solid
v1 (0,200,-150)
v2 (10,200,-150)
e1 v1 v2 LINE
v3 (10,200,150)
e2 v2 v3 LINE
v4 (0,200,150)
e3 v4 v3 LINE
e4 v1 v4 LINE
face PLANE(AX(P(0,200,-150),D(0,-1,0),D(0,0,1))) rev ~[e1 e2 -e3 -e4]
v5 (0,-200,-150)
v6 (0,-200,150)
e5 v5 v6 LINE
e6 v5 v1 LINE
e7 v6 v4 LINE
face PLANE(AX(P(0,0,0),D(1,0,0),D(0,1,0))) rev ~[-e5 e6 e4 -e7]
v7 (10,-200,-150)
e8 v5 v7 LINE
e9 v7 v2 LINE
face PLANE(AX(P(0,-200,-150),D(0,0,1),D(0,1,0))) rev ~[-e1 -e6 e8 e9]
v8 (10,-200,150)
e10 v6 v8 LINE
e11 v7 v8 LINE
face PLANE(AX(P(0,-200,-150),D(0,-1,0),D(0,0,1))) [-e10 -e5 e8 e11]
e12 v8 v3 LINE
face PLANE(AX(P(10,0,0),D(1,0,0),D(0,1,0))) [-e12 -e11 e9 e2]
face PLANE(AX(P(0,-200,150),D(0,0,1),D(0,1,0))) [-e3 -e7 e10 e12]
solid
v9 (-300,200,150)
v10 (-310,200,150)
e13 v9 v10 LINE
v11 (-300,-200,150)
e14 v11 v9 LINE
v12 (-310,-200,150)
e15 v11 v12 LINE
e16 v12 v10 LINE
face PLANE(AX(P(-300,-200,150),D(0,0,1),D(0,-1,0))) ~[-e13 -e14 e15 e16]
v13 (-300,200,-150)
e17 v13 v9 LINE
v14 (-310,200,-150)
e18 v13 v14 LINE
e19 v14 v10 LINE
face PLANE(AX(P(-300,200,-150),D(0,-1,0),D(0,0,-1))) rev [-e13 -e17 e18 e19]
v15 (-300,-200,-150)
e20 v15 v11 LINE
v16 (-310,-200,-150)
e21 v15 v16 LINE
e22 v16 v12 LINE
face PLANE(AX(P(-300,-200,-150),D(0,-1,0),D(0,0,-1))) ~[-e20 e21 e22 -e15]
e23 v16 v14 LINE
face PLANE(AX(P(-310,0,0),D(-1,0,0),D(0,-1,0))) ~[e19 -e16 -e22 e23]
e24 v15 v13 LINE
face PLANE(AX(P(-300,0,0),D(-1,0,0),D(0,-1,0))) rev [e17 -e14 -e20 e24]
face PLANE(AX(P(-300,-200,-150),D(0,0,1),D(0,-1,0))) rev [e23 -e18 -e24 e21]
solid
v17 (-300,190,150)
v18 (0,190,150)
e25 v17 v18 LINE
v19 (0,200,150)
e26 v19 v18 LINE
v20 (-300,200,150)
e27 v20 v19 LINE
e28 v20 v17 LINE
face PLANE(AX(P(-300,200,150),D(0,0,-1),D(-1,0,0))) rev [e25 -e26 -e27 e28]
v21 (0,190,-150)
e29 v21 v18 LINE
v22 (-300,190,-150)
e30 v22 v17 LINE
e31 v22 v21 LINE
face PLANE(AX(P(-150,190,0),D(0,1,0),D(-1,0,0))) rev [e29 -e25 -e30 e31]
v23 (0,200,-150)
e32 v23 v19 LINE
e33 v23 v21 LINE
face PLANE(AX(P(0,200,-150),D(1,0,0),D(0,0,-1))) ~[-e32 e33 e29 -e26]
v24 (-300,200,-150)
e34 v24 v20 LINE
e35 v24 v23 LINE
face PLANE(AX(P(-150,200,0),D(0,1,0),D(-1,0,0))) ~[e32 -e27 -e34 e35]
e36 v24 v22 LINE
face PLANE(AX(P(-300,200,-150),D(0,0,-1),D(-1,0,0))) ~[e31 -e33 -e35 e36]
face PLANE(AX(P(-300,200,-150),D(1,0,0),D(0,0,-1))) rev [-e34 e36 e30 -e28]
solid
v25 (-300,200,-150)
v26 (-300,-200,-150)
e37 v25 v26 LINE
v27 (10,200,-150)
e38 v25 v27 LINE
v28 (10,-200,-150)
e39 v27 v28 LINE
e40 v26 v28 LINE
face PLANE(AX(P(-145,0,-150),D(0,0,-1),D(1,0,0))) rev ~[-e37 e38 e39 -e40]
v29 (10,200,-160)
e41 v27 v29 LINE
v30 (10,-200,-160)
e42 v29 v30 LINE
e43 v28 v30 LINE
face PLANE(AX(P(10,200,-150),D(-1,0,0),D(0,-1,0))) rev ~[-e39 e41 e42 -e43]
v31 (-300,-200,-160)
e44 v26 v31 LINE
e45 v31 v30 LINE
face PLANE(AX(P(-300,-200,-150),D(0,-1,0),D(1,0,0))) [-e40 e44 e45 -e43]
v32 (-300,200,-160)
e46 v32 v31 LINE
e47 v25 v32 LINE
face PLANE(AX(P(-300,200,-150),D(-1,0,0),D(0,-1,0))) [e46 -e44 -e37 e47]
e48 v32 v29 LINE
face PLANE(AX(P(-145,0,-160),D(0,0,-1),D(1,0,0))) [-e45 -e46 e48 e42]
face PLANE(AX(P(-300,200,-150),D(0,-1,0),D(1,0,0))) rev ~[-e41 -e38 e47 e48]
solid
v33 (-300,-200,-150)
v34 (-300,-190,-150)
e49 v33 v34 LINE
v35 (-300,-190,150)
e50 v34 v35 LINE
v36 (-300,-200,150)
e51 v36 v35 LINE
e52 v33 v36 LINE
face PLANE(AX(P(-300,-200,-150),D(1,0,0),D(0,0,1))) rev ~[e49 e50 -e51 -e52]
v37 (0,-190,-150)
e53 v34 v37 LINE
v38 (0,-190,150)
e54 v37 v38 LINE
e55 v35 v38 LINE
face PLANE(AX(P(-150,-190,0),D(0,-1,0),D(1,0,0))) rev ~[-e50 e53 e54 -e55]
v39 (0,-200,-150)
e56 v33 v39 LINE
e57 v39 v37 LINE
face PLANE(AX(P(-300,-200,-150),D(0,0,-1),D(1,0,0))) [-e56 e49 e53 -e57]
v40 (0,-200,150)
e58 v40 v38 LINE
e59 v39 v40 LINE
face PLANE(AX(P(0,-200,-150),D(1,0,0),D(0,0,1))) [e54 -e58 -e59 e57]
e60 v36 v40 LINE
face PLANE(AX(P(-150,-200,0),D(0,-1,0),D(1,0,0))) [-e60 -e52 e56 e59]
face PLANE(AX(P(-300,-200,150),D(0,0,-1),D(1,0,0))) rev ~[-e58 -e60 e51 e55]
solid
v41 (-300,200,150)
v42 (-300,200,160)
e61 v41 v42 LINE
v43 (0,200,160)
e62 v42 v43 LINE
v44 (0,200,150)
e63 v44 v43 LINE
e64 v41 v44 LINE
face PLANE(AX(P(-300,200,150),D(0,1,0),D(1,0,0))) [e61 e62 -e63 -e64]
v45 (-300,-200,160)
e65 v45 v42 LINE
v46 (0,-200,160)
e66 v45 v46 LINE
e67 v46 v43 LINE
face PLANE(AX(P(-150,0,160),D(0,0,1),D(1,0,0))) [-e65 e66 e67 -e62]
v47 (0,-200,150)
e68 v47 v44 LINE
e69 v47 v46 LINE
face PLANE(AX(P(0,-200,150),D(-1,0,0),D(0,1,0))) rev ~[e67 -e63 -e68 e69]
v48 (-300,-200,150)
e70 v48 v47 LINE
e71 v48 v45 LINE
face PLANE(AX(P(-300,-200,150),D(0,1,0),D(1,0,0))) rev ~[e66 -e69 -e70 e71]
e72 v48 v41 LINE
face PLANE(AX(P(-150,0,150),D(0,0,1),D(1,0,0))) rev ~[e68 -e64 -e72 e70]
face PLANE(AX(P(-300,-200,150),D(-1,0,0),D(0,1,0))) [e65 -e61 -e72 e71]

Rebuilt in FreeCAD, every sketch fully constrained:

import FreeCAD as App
import Part
import Sketcher
from FreeCAD import Vector


def add_polygon(sketch, points):
    """Adds a closed chain of lines whose ends are joined by coincident constraints."""
    first, n = sketch.GeometryCount, len(points)
    for a, b in zip(points, points[1:] + points[:1]):
        sketch.addGeometry(Part.LineSegment(App.Vector(*a, 0), App.Vector(*b, 0)), False)
    for i in range(n):
        sketch.addConstraint(Sketcher.Constraint("Coincident", first + i, 2, first + (i + 1) % n, 1))

doc = App.newDocument("Part")
body = doc.addObject("PartDesign::Body", "Body")

sketch1 = doc.addObject("Sketcher::SketchObject", "Sketch")
body.addObject(sketch1)
sketch1.AttachmentSupport = (doc.YZ_Plane, [""])
sketch1.MapMode = "FlatFace"
add_polygon(sketch1, [(-200, 150), (-200, -150), (200, -150), (200, 150)])
sketch1.addConstraint(Sketcher.Constraint("Vertical", 0))
sketch1.addConstraint(Sketcher.Constraint("Horizontal", 1))
sketch1.addConstraint(Sketcher.Constraint("Vertical", 2))
sketch1.addConstraint(Sketcher.Constraint("Horizontal", 3))
sketch1.addConstraint(Sketcher.Constraint("Symmetric", 0, 2, 2, 2, -1, 1))
sketch1.addConstraint(Sketcher.Constraint("DistanceX", 1, 1, 1, 2, 400.0))
sketch1.addConstraint(Sketcher.Constraint("DistanceY", 0, 2, 0, 1, 300.0))
pad1 = doc.addObject("PartDesign::Pad", "Pad")
body.addObject(pad1)
pad1.Profile = sketch1
pad1.Length = 10
body2 = doc.addObject("PartDesign::Body", "Body001")

sketch2 = doc.addObject("Sketcher::SketchObject", "Sketch001")
body2.addObject(sketch2)
sketch2.AttachmentSupport = (doc.getObject("XZ_Plane001"), [""])
sketch2.MapMode = "FlatFace"
sketch2.AttachmentOffset = App.Placement(Vector(0, 0, 200), App.Rotation())
add_polygon(sketch2, [(-300, 150), (-300, -150), (0, -150), (0, 150)])
sketch2.addConstraint(Sketcher.Constraint("Vertical", 0))
sketch2.addConstraint(Sketcher.Constraint("Horizontal", 1))
sketch2.addConstraint(Sketcher.Constraint("Vertical", 2))
sketch2.addConstraint(Sketcher.Constraint("Horizontal", 3))
sketch2.addConstraint(Sketcher.Constraint("Symmetric", 1, 2, 2, 2, -1, 1))
sketch2.addConstraint(Sketcher.Constraint("Equal", 3, 0))
sketch2.addConstraint(Sketcher.Constraint("DistanceX", 1, 1, 1, 2, 300.0))
pad2 = doc.addObject("PartDesign::Pad", "Pad001")
body2.addObject(pad2)
pad2.Profile = sketch2
pad2.Length = 10
pad2.Reversed = True
body3 = doc.addObject("PartDesign::Body", "Body002")
doc.recompute()

mirroring = doc.addObject("Part::Mirroring", "Mirroring")
mirroring.Source = body2
mirroring.Base = Vector(0, 0, 0)
mirroring.Normal = Vector(0, -1, 0)
body3.BaseFeature = mirroring
doc.recompute()
body4 = doc.addObject("PartDesign::Body", "Body003")
doc.recompute()

mirroring2 = doc.addObject("Part::Mirroring", "Mirroring001")
mirroring2.Source = body
mirroring2.Base = Vector(-150, 0, 0)
mirroring2.Normal = Vector(-1, 0, 0)
body4.BaseFeature = mirroring2
doc.recompute()
body5 = doc.addObject("PartDesign::Body", "Body004")

sketch3 = doc.addObject("Sketcher::SketchObject", "Sketch002")
body5.addObject(sketch3)
sketch3.AttachmentSupport = (doc.getObject("XY_Plane004"), [""])
sketch3.MapMode = "FlatFace"
sketch3.AttachmentOffset = App.Placement(Vector(0, 0, 150), App.Rotation())
add_polygon(sketch3, [(-300, 200), (-300, -200), (0, -200), (0, 200)])
sketch3.addConstraint(Sketcher.Constraint("Vertical", 0))
sketch3.addConstraint(Sketcher.Constraint("Horizontal", 1))
sketch3.addConstraint(Sketcher.Constraint("Vertical", 2))
sketch3.addConstraint(Sketcher.Constraint("Horizontal", 3))
sketch3.addConstraint(Sketcher.Constraint("Symmetric", 1, 2, 2, 2, -1, 1))
sketch3.addConstraint(Sketcher.Constraint("DistanceX", 1, 1, 1, 2, 300.0))
sketch3.addConstraint(Sketcher.Constraint("DistanceY", 0, 2, 0, 1, 400.0))
pad3 = doc.addObject("PartDesign::Pad", "Pad002")
body5.addObject(pad3)
pad3.Profile = sketch3
pad3.Length = 10
body6 = doc.addObject("PartDesign::Body", "Body005")

sketch4 = doc.addObject("Sketcher::SketchObject", "Sketch003")
body6.addObject(sketch4)
sketch4.AttachmentSupport = (doc.getObject("XY_Plane005"), [""])
sketch4.MapMode = "FlatFace"
sketch4.AttachmentOffset = App.Placement(Vector(0, 0, -150), App.Rotation())
add_polygon(sketch4, [(-300, -200), (-300, 200), (10, 200), (10, -200)])
sketch4.addConstraint(Sketcher.Constraint("Vertical", 0))
sketch4.addConstraint(Sketcher.Constraint("Horizontal", 1))
sketch4.addConstraint(Sketcher.Constraint("Vertical", 2))
sketch4.addConstraint(Sketcher.Constraint("Horizontal", 3))
sketch4.addConstraint(Sketcher.Constraint("DistanceX", 1, 1, 1, 2, 310.0))
sketch4.addConstraint(Sketcher.Constraint("DistanceY", 0, 1, 0, 2, 400.0))
sketch4.addConstraint(Sketcher.Constraint("DistanceX", 0, 2, -1, 1, 300.0))
sketch4.addConstraint(Sketcher.Constraint("DistanceY", -1, 1, 0, 2, 200.0))
pad4 = doc.addObject("PartDesign::Pad", "Pad003")
body6.addObject(pad4)
pad4.Profile = sketch4
pad4.Length = 10
pad4.Reversed = True
mirroring.Visibility = False
mirroring2.Visibility = False

doc.recompute()
